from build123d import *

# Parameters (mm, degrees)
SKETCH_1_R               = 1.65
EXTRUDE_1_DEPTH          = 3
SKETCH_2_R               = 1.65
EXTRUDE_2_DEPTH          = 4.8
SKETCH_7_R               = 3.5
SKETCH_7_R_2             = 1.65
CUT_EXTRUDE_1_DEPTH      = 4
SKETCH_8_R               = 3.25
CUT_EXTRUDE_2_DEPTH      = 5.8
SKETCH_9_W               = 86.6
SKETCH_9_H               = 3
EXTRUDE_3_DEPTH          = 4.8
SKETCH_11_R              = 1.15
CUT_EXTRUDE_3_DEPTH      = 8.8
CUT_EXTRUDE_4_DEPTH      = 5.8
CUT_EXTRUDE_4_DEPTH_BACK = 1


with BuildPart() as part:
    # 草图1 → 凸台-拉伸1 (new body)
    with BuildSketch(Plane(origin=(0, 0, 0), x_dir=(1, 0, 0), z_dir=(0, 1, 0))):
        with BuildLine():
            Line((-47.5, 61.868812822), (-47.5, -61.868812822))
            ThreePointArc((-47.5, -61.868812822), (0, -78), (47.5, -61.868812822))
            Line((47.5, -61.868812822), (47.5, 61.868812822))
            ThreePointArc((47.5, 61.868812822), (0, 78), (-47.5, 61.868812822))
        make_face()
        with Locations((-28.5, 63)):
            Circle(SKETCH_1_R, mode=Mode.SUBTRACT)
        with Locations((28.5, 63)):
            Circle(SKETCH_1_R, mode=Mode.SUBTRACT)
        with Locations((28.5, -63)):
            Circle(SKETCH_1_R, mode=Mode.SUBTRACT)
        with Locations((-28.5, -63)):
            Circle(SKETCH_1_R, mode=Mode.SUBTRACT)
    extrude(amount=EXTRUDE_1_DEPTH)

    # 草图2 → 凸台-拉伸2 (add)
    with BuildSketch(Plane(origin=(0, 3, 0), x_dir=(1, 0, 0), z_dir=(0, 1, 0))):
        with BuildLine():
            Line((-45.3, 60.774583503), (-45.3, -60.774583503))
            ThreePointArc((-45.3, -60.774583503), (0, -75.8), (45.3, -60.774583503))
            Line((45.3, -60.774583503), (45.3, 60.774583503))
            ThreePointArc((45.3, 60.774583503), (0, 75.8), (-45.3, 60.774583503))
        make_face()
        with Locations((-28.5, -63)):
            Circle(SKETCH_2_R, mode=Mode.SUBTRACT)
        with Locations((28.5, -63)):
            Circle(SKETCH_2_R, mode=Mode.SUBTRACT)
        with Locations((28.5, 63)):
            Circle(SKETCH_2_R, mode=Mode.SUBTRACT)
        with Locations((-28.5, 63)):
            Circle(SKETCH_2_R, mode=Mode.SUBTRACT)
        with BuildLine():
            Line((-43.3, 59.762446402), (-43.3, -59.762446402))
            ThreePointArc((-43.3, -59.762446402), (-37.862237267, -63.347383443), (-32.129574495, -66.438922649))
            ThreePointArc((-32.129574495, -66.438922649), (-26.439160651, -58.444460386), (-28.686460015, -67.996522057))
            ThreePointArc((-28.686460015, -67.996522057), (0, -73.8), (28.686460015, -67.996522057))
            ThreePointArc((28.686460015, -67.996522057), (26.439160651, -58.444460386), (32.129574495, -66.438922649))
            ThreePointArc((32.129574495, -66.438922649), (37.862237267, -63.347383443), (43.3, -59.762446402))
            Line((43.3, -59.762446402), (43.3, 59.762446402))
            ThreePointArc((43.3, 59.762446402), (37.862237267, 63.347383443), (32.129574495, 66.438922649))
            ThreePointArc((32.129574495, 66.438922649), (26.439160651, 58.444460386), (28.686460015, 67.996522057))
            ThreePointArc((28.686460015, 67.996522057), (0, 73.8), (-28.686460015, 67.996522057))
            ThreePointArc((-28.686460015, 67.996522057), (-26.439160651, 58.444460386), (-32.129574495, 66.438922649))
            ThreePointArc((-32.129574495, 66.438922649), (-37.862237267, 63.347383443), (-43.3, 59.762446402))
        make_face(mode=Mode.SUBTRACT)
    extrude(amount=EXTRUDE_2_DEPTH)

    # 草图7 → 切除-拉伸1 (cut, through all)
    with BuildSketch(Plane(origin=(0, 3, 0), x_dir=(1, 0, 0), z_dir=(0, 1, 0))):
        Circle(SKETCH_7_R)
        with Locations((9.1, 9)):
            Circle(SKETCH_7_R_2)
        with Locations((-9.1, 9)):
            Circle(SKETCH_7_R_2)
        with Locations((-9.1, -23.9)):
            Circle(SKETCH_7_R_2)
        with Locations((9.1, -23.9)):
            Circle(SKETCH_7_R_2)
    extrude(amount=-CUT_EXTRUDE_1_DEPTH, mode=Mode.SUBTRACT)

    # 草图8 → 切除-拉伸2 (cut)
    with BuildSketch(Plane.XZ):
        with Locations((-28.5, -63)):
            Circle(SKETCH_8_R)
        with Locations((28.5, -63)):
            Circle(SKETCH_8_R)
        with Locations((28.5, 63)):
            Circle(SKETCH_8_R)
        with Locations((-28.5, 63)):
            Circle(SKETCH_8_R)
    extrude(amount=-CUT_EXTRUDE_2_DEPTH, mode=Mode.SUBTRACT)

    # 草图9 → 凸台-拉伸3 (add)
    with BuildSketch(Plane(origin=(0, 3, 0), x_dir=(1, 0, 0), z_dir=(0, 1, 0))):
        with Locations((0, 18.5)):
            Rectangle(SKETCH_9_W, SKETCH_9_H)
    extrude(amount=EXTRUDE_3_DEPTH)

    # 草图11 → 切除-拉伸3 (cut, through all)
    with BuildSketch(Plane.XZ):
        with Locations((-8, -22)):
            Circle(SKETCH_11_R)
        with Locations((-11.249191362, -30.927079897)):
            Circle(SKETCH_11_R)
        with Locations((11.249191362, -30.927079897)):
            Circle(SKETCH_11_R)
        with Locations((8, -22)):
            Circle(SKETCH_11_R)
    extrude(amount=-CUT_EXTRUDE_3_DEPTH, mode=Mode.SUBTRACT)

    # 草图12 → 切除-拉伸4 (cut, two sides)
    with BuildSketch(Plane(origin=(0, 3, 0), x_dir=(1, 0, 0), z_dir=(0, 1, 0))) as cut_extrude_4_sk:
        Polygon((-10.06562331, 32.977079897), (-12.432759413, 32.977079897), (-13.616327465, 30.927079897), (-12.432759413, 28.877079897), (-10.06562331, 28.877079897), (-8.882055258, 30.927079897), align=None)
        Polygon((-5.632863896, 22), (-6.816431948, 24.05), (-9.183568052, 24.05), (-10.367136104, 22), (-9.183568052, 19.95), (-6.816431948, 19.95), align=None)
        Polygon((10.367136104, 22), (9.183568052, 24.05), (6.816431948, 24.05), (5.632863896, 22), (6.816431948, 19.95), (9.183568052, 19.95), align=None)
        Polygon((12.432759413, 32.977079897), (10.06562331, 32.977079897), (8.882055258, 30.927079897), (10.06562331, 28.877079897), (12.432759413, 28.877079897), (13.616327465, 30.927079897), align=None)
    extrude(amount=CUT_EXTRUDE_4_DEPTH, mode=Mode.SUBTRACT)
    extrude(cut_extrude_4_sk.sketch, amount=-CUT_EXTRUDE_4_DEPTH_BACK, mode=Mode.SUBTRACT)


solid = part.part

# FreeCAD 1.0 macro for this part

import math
import FreeCAD as App
import Part
import Sketcher
from FreeCAD import Vector
Q = App.Units.Quantity


def add_polygon(sketch, points):
    """Adds a closed chain of lines whose ends are joined by coincident constraints."""
    first, n = sketch.GeometryCount, len(points)
    for a, b in zip(points, points[1:] + points[:1]):
        sketch.addGeometry(Part.LineSegment(App.Vector(*a, 0), App.Vector(*b, 0)), False)
    for i in range(n):
        sketch.addConstraint(Sketcher.Constraint("Coincident", first + i, 2, first + (i + 1) % n, 1))

doc = App.newDocument("Part")
params = doc.addObject("Spreadsheet::Sheet", "Params")
for row, (alias, value) in enumerate([
    ("sketch1_radius", "78 mm"),
    ("sketch1_diameter", "3.3 mm"),
    ("pad1_length", "3 mm"),
    ("sketch2_radius", "5 mm"),
    ("sketch2_diameter", "3.3 mm"),
    ("sketch2_radius2", "75.8 mm"),
    ("sketch2_radius3", "73.8 mm"),
    ("pad2_length", "4.8 mm"),
    ("sketch3_diameter", "7 mm"),
    ("sketch3_diameter2", "3.3 mm"),
    ("sketch4_diameter", "6.5 mm"),
    ("pocket2_length", "5.8 mm"),
    ("sketch5_height", "3 mm"),
    ("sketch5_width", "86.6 mm"),
    ("pad3_length", "4.8 mm"),
    ("sketch6_diameter", "2.3 mm"),
    ("pocket4_length", "5.8 mm"),
    ("pocket4_length2", "1 mm"),
], start=1):
    params.set(f"A{row}", alias)
    params.set(f"B{row}", "=" + value)
    params.setAlias(f"B{row}", alias)

body = doc.addObject("PartDesign::Body", "Body")

sketch1 = body.newObject("Sketcher::SketchObject", "Sketch")
sketch1.AttachmentSupport = (doc.getObject("XZ_Plane"), [""])
sketch1.MapMode = "FlatFace"
sketch1.addGeometry([
    Part.LineSegment(Vector(-47.5, -61.868813, 0), Vector(-47.5, 61.868813, 0)),
    Part.ArcOfCircle(Part.Circle(Vector(0, 0, 0), Vector(0, 0, 1), 78), math.radians(52.484621), math.radians(127.515379)),
    Part.LineSegment(Vector(47.5, 61.868813, 0), Vector(47.5, -61.868813, 0)),
    Part.ArcOfCircle(Part.Circle(Vector(0, 0, 0), Vector(0, 0, 1), 78), math.radians(-127.515379), math.radians(-52.484621)),
    Part.Circle(Vector(-28.5, 63, 0), Vector(0, 0, 1), 1.65),
    Part.Circle(Vector(28.5, 63, 0), Vector(0, 0, 1), 1.65),
    Part.Circle(Vector(-28.5, -63, 0), Vector(0, 0, 1), 1.65),
    Part.Circle(Vector(28.5, -63, 0), Vector(0, 0, 1), 1.65),
], False)
sketch1.addConstraint([
    Sketcher.Constraint("Coincident", 0, 2, 1, 2),
    Sketcher.Constraint("Coincident", 1, 1, 2, 1),
    Sketcher.Constraint("Coincident", 2, 2, 3, 2),
    Sketcher.Constraint("Coincident", 3, 1, 0, 1),
    Sketcher.Constraint("Vertical", 0),
    Sketcher.Constraint("Vertical", 2),
    Sketcher.Constraint("Coincident", 1, 3, -1, 1),
    Sketcher.Constraint("Coincident", 3, 3, -1, 1),
    Sketcher.Constraint("Equal", 1, 3),
    Sketcher.Constraint("Equal", 4, 5),
    Sketcher.Constraint("Equal", 5, 6),
    Sketcher.Constraint("Equal", 6, 7),
    Sketcher.Constraint("Symmetric", 5, 3, 6, 3, -1, 1),
    Sketcher.Constraint("Symmetric", 4, 3, 7, 3, -1, 1),
    Sketcher.Constraint("Symmetric", 4, 3, 5, 3, -2),
    Sketcher.Constraint("Horizontal", 0, 2, 1, 1),
    Sketcher.Constraint("Radius", 1, Q("78 mm")),
    Sketcher.Constraint("Diameter", 4, Q("3.3 mm")),
    Sketcher.Constraint("DistanceY", -1, 1, 4, 3, Q("63 mm")),
    Sketcher.Constraint("DistanceX", 4, 3, 5, 3, Q("57 mm")),
    Sketcher.Constraint("DistanceX", 0, 2, 4, 3, Q("19 mm")),
])
sketch1.setExpression("Constraints[16]", "Params.sketch1_radius")
sketch1.setExpression("Constraints[17]", "Params.sketch1_diameter")
pad1 = body.newObject("PartDesign::Pad", "Pad")
pad1.Profile = sketch1
pad1.setExpression("Length", "Params.pad1_length")
pad1.Reversed = True

sketch2 = body.newObject("Sketcher::SketchObject", "Sketch001")
sketch2.AttachmentSupport = (doc.getObject("XZ_Plane"), [""])
sketch2.MapMode = "FlatFace"
sketch2.AttachmentOffset = App.Placement(Vector(0, 0, -3), App.Rotation())
sketch2.addGeometry([
    Part.LineSegment(Vector(-45.3, -60.774584, 0), Vector(-45.3, 60.774584, 0)),
    Part.ArcOfCircle(Part.Circle(Vector(0, 0, 0), Vector(0, 0, 1), 75.8), math.radians(53.299987), math.radians(126.700013)),
    Part.LineSegment(Vector(45.3, 60.774584, 0), Vector(45.3, -60.774584, 0)),
    Part.ArcOfCircle(Part.Circle(Vector(0, 0, 0), Vector(0, 0, 1), 75.8), math.radians(-126.700013), math.radians(-53.299987)),
    Part.Circle(Vector(-28.5, 63, 0), Vector(0, 0, 1), 1.65),
    Part.Circle(Vector(28.5, 63, 0), Vector(0, 0, 1), 1.65),
    Part.Circle(Vector(-28.5, -63, 0), Vector(0, 0, 1), 1.65),
    Part.LineSegment(Vector(-43.3, 59.762446, 0), Vector(-43.3, -59.762446, 0)),
    Part.ArcOfCircle(Part.Circle(Vector(0, 0, 0), Vector(0, 0, 1), 73.8), math.radians(-125.924655), math.radians(-115.808209)),
    Part.ArcOfCircle(Part.Circle(Vector(-28.5, -63, 0), Vector(0, 0, 1), 5), math.radians(-92.13717), math.radians(223.45499)),
    Part.ArcOfCircle(Part.Circle(Vector(0, 0, 0), Vector(0, 0, 1), 73.8), math.radians(-112.873971), math.radians(-67.126029)),
    Part.ArcOfCircle(Part.Circle(Vector(28.5, -63, 0), Vector(0, 0, 1), 5), math.radians(-43.45499), math.radians(272.13717)),
    Part.ArcOfCircle(Part.Circle(Vector(0, 0, 0), Vector(0, 0, 1), 73.8), math.radians(-64.191791), math.radians(-54.075345)),
    Part.LineSegment(Vector(43.3, -59.762446, 0), Vector(43.3, 59.762446, 0)),
    Part.ArcOfCircle(Part.Circle(Vector(0, 0, 0), Vector(0, 0, 1), 73.8), math.radians(54.075345), math.radians(64.191791)),
    Part.ArcOfCircle(Part.Circle(Vector(28.5, 63, 0), Vector(0, 0, 1), 5), math.radians(87.86283), math.radians(403.45499)),
    Part.ArcOfCircle(Part.Circle(Vector(0, 0, 0), Vector(0, 0, 1), 73.8), math.radians(67.126029), math.radians(112.873971)),
    Part.ArcOfCircle(Part.Circle(Vector(-28.5, 63, 0), Vector(0, 0, 1), 5), math.radians(136.54501), math.radians(452.13717)),
    Part.ArcOfCircle(Part.Circle(Vector(0, 0, 0), Vector(0, 0, 1), 73.8), math.radians(115.808209), math.radians(125.924655)),
    Part.Circle(Vector(28.5, -63, 0), Vector(0, 0, 1), 1.65),
], False)
sketch2.addConstraint([
    Sketcher.Constraint("Coincident", 0, 2, 1, 2),
    Sketcher.Constraint("Coincident", 1, 1, 2, 1),
    Sketcher.Constraint("Coincident", 2, 2, 3, 2),
    Sketcher.Constraint("Coincident", 3, 1, 0, 1),
    Sketcher.Constraint("Coincident", 7, 2, 8, 1),
    Sketcher.Constraint("Coincident", 8, 2, 9, 2),
    Sketcher.Constraint("Coincident", 9, 1, 10, 1),
    Sketcher.Constraint("Coincident", 10, 2, 11, 2),
    Sketcher.Constraint("Coincident", 11, 1, 12, 1),
    Sketcher.Constraint("Coincident", 12, 2, 13, 1),
    Sketcher.Constraint("Coincident", 13, 2, 14, 1),
    Sketcher.Constraint("Coincident", 14, 2, 15, 2),
    Sketcher.Constraint("Coincident", 15, 1, 16, 1),
    Sketcher.Constraint("Coincident", 16, 2, 17, 2),
    Sketcher.Constraint("Coincident", 17, 1, 18, 1),
    Sketcher.Constraint("Coincident", 18, 2, 7, 1),
    Sketcher.Constraint("Vertical", 0),
    Sketcher.Constraint("Vertical", 2),
    Sketcher.Constraint("Vertical", 7),
    Sketcher.Constraint("Vertical", 13),
    Sketcher.Constraint("Coincident", 1, 3, -1, 1),
    Sketcher.Constraint("Coincident", 3, 3, -1, 1),
    Sketcher.Constraint("Coincident", 8, 3, -1, 1),
    Sketcher.Constraint("Coincident", 10, 3, -1, 1),
    Sketcher.Constraint("Coincident", 12, 3, -1, 1),
    Sketcher.Constraint("Coincident", 14, 3, -1, 1),
    Sketcher.Constraint("Coincident", 16, 3, -1, 1),
    Sketcher.Constraint("Coincident", 18, 3, -1, 1),
    Sketcher.Constraint("Coincident", 9, 3, 6, 3),
    Sketcher.Constraint("Coincident", 15, 3, 5, 3),
    Sketcher.Constraint("Coincident", 17, 3, 4, 3),
    Sketcher.Constraint("Coincident", 19, 3, 11, 3),
    Sketcher.Constraint("Equal", 1, 3),
    Sketcher.Constraint("Equal", 4, 5),
    Sketcher.Constraint("Equal", 5, 6),
    Sketcher.Constraint("Equal", 8, 10),
    Sketcher.Constraint("Equal", 9, 11),
    Sketcher.Constraint("Equal", 10, 12),
    Sketcher.Constraint("Equal", 12, 14),
    Sketcher.Constraint("Equal", 11, 15),
    Sketcher.Constraint("Equal", 14, 16),
    Sketcher.Constraint("Equal", 15, 17),
    Sketcher.Constraint("Equal", 16, 18),
    Sketcher.Constraint("Equal", 6, 19),
    Sketcher.Constraint("Symmetric", 5, 3, 6, 3, -1, 1),
    Sketcher.Constraint("Symmetric", 4, 3, 11, 3, -1, 1),
    Sketcher.Constraint("Symmetric", 4, 3, 5, 3, -2),
    Sketcher.Constraint("Horizontal", 0, 2, 1, 1),
    Sketcher.Constraint("Horizontal", 7, 2, 12, 2),
    Sketcher.Constraint("Radius", 9, Q("5 mm")),
    Sketcher.Constraint("Diameter", 4, Q("3.3 mm")),
    Sketcher.Constraint("Radius", 1, Q("75.8 mm")),
    Sketcher.Constraint("Radius", 8, Q("73.8 mm")),
    Sketcher.Constraint("DistanceY", -1, 1, 4, 3, Q("63 mm")),
    Sketcher.Constraint("DistanceX", 4, 3, 5, 3, Q("57 mm")),
    Sketcher.Constraint("DistanceX", 3, 1, 7, 2, Q("2 mm")),
    Sketcher.Constraint("DistanceX", 0, 2, -1, 1, Q("45.3 mm")),
])
sketch2.setExpression("Constraints[49]", "Params.sketch2_radius")
sketch2.setExpression("Constraints[50]", "Params.sketch2_diameter")
sketch2.setExpression("Constraints[51]", "Params.sketch2_radius2")
sketch2.setExpression("Constraints[52]", "Params.sketch2_radius3")
pad2 = body.newObject("PartDesign::Pad", "Pad001")
pad2.Profile = sketch2
pad2.setExpression("Length", "Params.pad2_length")
pad2.Reversed = True

sketch3 = body.newObject("Sketcher::SketchObject", "Sketch002")
sketch3.AttachmentSupport = (doc.getObject("XZ_Plane"), [""])
sketch3.MapMode = "FlatFace"
sketch3.AttachmentOffset = App.Placement(Vector(0, 0, -3), App.Rotation())
sketch3.addGeometry([
    Part.Circle(Vector(0, 0, 0), Vector(0, 0, 1), 3.5),
    Part.Circle(Vector(9.1, -9, 0), Vector(0, 0, 1), 1.65),
    Part.Circle(Vector(-9.1, -9, 0), Vector(0, 0, 1), 1.65),
    Part.Circle(Vector(-9.1, 23.9, 0), Vector(0, 0, 1), 1.65),
    Part.Circle(Vector(9.1, 23.9, 0), Vector(0, 0, 1), 1.65),
], False)
sketch3.addConstraint([
    Sketcher.Constraint("Coincident", 0, 3, -1, 1),
    Sketcher.Constraint("Equal", 1, 2),
    Sketcher.Constraint("Equal", 2, 3),
    Sketcher.Constraint("Equal", 3, 4),
    Sketcher.Constraint("Symmetric", 1, 3, 2, 3, -2),
    Sketcher.Constraint("Symmetric", 3, 3, 4, 3, -2),
    Sketcher.Constraint("Vertical", 2, 3, 3, 3),
    Sketcher.Constraint("Diameter", 0, Q("7 mm")),
    Sketcher.Constraint("Diameter", 1, Q("3.3 mm")),
    Sketcher.Constraint("DistanceY", 1, 3, -1, 1, Q("9 mm")),
    Sketcher.Constraint("DistanceX", -1, 1, 1, 3, Q("9.1 mm")),
    Sketcher.Constraint("DistanceY", -1, 1, 3, 3, Q("23.9 mm")),
])
sketch3.setExpression("Constraints[7]", "Params.sketch3_diameter")
sketch3.setExpression("Constraints[8]", "Params.sketch3_diameter2")
pocket1 = body.newObject("PartDesign::Pocket", "Pocket")
pocket1.Profile = sketch3
pocket1.Type = "ThroughAll"
pocket1.Reversed = True

sketch4 = body.newObject("Sketcher::SketchObject", "Sketch003")
sketch4.AttachmentSupport = (doc.getObject("XZ_Plane"), [""])
sketch4.MapMode = "FlatFace"
sketch4.addGeometry([
    Part.Circle(Vector(-28.5, -63, 0), Vector(0, 0, 1), 3.25),
    Part.Circle(Vector(28.5, -63, 0), Vector(0, 0, 1), 3.25),
    Part.Circle(Vector(28.5, 63, 0), Vector(0, 0, 1), 3.25),
    Part.Circle(Vector(-28.5, 63, 0), Vector(0, 0, 1), 3.25),
], False)
sketch4.addConstraint([
    Sketcher.Constraint("Equal", 0, 1),
    Sketcher.Constraint("Equal", 1, 2),
    Sketcher.Constraint("Equal", 2, 3),
    Sketcher.Constraint("Symmetric", 0, 3, 2, 3, -1, 1),
    Sketcher.Constraint("Symmetric", 1, 3, 3, 3, -1, 1),
    Sketcher.Constraint("Symmetric", 0, 3, 1, 3, -2),
    Sketcher.Constraint("Diameter", 0, Q("6.5 mm")),
    Sketcher.Constraint("DistanceY", 0, 3, -1, 1, Q("63 mm")),
    Sketcher.Constraint("DistanceX", 0, 3, 1, 3, Q("57 mm")),
])
sketch4.setExpression("Constraints[6]", "Params.sketch4_diameter")
pocket2 = body.newObject("PartDesign::Pocket", "Pocket001")
pocket2.Profile = sketch4
pocket2.setExpression("Length", "Params.pocket2_length")

sketch5 = body.newObject("Sketcher::SketchObject", "Sketch004")
sketch5.AttachmentSupport = (doc.getObject("XZ_Plane"), [""])
sketch5.MapMode = "FlatFace"
sketch5.AttachmentOffset = App.Placement(Vector(0, 0, -3), App.Rotation())
add_polygon(sketch5, [(-43.3, -20), (-43.3, -17), (43.3, -17), (43.3, -20)])
sketch5.addConstraint([
    Sketcher.Constraint("Vertical", 0),
    Sketcher.Constraint("Horizontal", 1),
    Sketcher.Constraint("Vertical", 2),
    Sketcher.Constraint("Horizontal", 3),
    Sketcher.Constraint("DistanceY", 0, 1, 0, 2, Q("3 mm")),
    Sketcher.Constraint("DistanceX", 1, 1, 1, 2, Q("86.6 mm")),
    Sketcher.Constraint("DistanceY", 0, 2, -1, 1, Q("17 mm")),
    Sketcher.Constraint("DistanceX", 0, 2, -1, 1, Q("43.3 mm")),
])
sketch5.setExpression("Constraints[8]", "Params.sketch5_height")
sketch5.setExpression("Constraints[9]", "Params.sketch5_width")
pad3 = body.newObject("PartDesign::Pad", "Pad002")
pad3.Profile = sketch5
pad3.setExpression("Length", "Params.pad3_length")
pad3.Reversed = True

sketch6 = body.newObject("Sketcher::SketchObject", "Sketch005")
sketch6.AttachmentSupport = (doc.getObject("XZ_Plane"), [""])
sketch6.MapMode = "FlatFace"
sketch6.addGeometry([
    Part.Circle(Vector(-8, -22, 0), Vector(0, 0, 1), 1.15),
    Part.Circle(Vector(-11.249191, -30.92708, 0), Vector(0, 0, 1), 1.15),
    Part.Circle(Vector(11.249191, -30.92708, 0), Vector(0, 0, 1), 1.15),
    Part.Circle(Vector(8, -22, 0), Vector(0, 0, 1), 1.15),
], False)
sketch6.addConstraint([
    Sketcher.Constraint("Equal", 0, 1),
    Sketcher.Constraint("Equal", 1, 2),
    Sketcher.Constraint("Equal", 2, 3),
    Sketcher.Constraint("Symmetric", 1, 3, 2, 3, -2),
    Sketcher.Constraint("Symmetric", 0, 3, 3, 3, -2),
    Sketcher.Constraint("Diameter", 0, Q("2.3 mm")),
    Sketcher.Constraint("DistanceX", 0, 3, -1, 1, Q("8 mm")),
    Sketcher.Constraint("DistanceY", 0, 3, -1, 1, Q("22 mm")),
    Sketcher.Constraint("DistanceX", 1, 3, -1, 1, Q("11.249191 mm")),
    Sketcher.Constraint("DistanceY", 1, 3, -1, 1, Q("30.92708 mm")),
])
sketch6.setExpression("Constraints[5]", "Params.sketch6_diameter")
pocket3 = body.newObject("PartDesign::Pocket", "Pocket002")
pocket3.Profile = sketch6
pocket3.Type = "ThroughAll"

sketch7 = body.newObject("Sketcher::SketchObject", "Sketch006")
sketch7.AttachmentSupport = (doc.getObject("XZ_Plane"), [""])
sketch7.MapMode = "FlatFace"
sketch7.AttachmentOffset = App.Placement(Vector(0, 0, -3), App.Rotation())
add_polygon(sketch7, [(-10.065623, -32.97708), (-12.432759, -32.97708), (-13.616327, -30.92708), (-12.432759, -28.87708), (-10.065623, -28.87708), (-8.882055, -30.92708)])
add_polygon(sketch7, [(-5.632864, -22), (-6.816432, -24.05), (-9.183568, -24.05), (-10.367136, -22), (-9.183568, -19.95), (-6.816432, -19.95)])
add_polygon(sketch7, [(10.367136, -22), (9.183568, -24.05), (6.816432, -24.05), (5.632864, -22), (6.816432, -19.95), (9.183568, -19.95)])
add_polygon(sketch7, [(12.432759, -32.97708), (10.065623, -32.97708), (8.882055, -30.92708), (10.065623, -28.87708), (12.432759, -28.87708), (13.616327, -30.92708)])
sketch7.addConstraint([
    Sketcher.Constraint("Horizontal", 0),
    Sketcher.Constraint("Horizontal", 3),
    Sketcher.Constraint("Horizontal", 7),
    Sketcher.Constraint("Horizontal", 10),
    Sketcher.Constraint("Horizontal", 13),
    Sketcher.Constraint("Horizontal", 16),
    Sketcher.Constraint("Horizontal", 18),
    Sketcher.Constraint("Horizontal", 21),
    Sketcher.Constraint("Symmetric", 7, 2, 12, 2, -2),
    Sketcher.Constraint("Symmetric", 11, 2, 14, 2, -2),
    Sketcher.Constraint("Symmetric", 10, 2, 15, 2, -2),
    Sketcher.Constraint("Symmetric", 8, 2, 17, 2, -2),
    Sketcher.Constraint("Symmetric", 5, 2, 18, 2, -2),
    Sketcher.Constraint("Symmetric", 4, 2, 19, 2, -2),
    Sketcher.Constraint("Symmetric", 3, 2, 20, 2, -2),
    Sketcher.Constraint("Symmetric", 1, 2, 22, 2, -2),
    Sketcher.Constraint("Parallel", 1, 4),
    Sketcher.Constraint("Parallel", 2, 5),
    Sketcher.Constraint("Parallel", 5, 6),
    Sketcher.Constraint("Parallel", 4, 8),
    Sketcher.Constraint("Parallel", 6, 9),
    Sketcher.Constraint("Parallel", 8, 11),
    Sketcher.Constraint("Parallel", 9, 12),
    Sketcher.Constraint("Parallel", 11, 14),
    Sketcher.Constraint("Parallel", 14, 17),
    Sketcher.Constraint("Parallel", 19, 22),
    Sketcher.Constraint("Parallel", 20, 23),
    Sketcher.Constraint("Horizontal", 1, 2, 4, 2),
    Sketcher.Constraint("Horizontal", 8, 2, 11, 2),
    Sketcher.Constraint("Vertical", 0, 2, 2, 2),
    Sketcher.Constraint("Vertical", 7, 2, 9, 2),
    Sketcher.Constraint("Equal", 3, 7),
    Sketcher.Constraint("Equal", 5, 6),
    Sketcher.Constraint("Angle", 1, Q("120 deg")),
    Sketcher.Constraint("DistanceY", 8, 2, -1, 1, Q("22 mm")),
    Sketcher.Constraint("DistanceX", 6, 2, 12, 2, Q("16 mm")),
    Sketcher.Constraint("DistanceY", 0, 2, 2, 2, Q("4.1 mm")),
    Sketcher.Constraint("DistanceX", 0, 2, 0, 1, Q("2.367136 mm")),
    Sketcher.Constraint("DistanceX", 0, 2, -1, 1, Q("12.432759 mm")),
    Sketcher.Constraint("DistanceY", 0, 2, -1, 1, Q("32.97708 mm")),
])
pocket4 = body.newObject("PartDesign::Pocket", "Pocket003")
pocket4.Profile = sketch7
pocket4.Type = "TwoLengths"
pocket4.setExpression("Length", "Params.pocket4_length")
pocket4.setExpression("Length2", "Params.pocket4_length2")

doc.recompute()
